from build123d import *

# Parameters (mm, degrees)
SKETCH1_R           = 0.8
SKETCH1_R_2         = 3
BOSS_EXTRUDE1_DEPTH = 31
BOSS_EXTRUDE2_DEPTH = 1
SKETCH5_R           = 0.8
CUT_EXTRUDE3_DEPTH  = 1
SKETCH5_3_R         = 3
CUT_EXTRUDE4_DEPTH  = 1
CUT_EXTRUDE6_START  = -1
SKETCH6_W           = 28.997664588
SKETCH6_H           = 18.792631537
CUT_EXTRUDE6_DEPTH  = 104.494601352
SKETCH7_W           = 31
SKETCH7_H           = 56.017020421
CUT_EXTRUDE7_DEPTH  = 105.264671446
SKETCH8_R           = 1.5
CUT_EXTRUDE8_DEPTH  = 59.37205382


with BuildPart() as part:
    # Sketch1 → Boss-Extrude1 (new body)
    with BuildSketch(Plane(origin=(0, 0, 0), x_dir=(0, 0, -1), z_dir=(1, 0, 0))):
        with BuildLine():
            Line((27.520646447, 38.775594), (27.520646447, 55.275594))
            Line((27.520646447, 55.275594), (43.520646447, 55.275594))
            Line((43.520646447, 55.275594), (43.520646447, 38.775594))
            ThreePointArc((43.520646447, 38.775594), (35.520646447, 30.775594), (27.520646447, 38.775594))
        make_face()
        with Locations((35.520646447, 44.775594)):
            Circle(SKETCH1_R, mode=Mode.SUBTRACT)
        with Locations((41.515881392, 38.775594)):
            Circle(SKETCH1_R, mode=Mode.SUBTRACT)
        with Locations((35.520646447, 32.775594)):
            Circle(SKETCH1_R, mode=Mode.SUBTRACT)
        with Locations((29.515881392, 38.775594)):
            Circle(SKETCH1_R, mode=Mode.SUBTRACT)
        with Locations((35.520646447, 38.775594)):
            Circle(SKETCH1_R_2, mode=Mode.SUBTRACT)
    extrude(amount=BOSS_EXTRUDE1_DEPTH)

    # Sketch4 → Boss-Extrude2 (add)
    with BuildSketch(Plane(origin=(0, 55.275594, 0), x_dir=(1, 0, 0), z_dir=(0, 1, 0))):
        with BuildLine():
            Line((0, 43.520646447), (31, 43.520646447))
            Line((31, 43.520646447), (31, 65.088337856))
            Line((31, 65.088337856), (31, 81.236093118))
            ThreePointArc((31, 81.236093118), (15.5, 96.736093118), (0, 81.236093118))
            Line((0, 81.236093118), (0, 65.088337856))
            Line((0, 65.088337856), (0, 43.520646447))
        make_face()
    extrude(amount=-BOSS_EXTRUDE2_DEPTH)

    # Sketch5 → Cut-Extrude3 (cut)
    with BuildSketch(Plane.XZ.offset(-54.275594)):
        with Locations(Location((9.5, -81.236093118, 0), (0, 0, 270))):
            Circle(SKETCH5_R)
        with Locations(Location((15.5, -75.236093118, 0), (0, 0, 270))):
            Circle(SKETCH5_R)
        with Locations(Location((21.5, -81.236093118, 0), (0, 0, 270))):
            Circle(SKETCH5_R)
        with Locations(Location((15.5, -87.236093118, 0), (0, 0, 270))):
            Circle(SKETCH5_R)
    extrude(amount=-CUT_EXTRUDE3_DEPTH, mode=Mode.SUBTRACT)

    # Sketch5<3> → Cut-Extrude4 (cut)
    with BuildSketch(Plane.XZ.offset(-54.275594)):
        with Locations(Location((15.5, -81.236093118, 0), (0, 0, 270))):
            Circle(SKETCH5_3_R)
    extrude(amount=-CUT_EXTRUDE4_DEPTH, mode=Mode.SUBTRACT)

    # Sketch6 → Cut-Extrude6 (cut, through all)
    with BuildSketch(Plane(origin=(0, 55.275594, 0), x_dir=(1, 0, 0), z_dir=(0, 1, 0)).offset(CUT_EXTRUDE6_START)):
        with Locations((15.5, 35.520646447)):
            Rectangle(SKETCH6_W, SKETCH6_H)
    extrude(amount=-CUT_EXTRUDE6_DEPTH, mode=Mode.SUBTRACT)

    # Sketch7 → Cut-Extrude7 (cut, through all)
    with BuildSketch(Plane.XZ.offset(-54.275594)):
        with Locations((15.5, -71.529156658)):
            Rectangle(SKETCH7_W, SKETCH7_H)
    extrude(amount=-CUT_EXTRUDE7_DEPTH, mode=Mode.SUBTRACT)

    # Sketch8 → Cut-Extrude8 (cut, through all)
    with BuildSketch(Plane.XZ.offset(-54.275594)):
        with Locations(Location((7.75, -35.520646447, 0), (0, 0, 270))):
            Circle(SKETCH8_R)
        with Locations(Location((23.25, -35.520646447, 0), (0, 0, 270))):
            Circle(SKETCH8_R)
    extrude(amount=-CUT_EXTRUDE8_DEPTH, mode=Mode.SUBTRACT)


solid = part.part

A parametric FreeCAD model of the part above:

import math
import FreeCAD as App
import Part
import Sketcher
from FreeCAD import Vector


def add_polygon(sketch, points):
    """Adds a closed chain of lines whose ends are joined by coincident constraints."""
    first, n = sketch.GeometryCount, len(points)
    for a, b in zip(points, points[1:] + points[:1]):
        sketch.addGeometry(Part.LineSegment(App.Vector(*a, 0), App.Vector(*b, 0)), False)
    for i in range(n):
        sketch.addConstraint(Sketcher.Constraint("Coincident", first + i, 2, first + (i + 1) % n, 1))

doc = App.newDocument("Part")
body = doc.addObject("PartDesign::Body", "Body")

# Sketch on YZ plane
sketch1 = body.newObject("Sketcher::SketchObject", "Sketch")
sketch1.AttachmentSupport = (doc.getObject("YZ_Plane"), [""])
sketch1.MapMode = "FlatFace"
sketch1.addGeometry([
    Part.LineSegment(Vector(55.3, -27.5, 0), Vector(38.8, -27.5, 0)),  # 0
    Part.ArcOfCircle(Part.Circle(Vector(38.8, -35.5, 0), Vector(0, 0, 1), 8), math.radians(90), math.radians(270)),  # 1
    Part.LineSegment(Vector(38.8, -43.5, 0), Vector(55.3, -43.5, 0)),  # 2
    Part.LineSegment(Vector(55.3, -43.5, 0), Vector(55.3, -27.5, 0)),  # 3
    Part.Circle(Vector(32.8, -35.5, 0), Vector(0, 0, 1), 0.8),  # 4
    Part.Circle(Vector(38.8, -41.5, 0), Vector(0, 0, 1), 0.8),  # 5
    Part.Circle(Vector(38.8, -35.5, 0), Vector(0, 0, 1), 3),  # 6
    Part.Circle(Vector(44.8, -35.5, 0), Vector(0, 0, 1), 0.8),  # 7
    Part.Circle(Vector(38.8, -29.5, 0), Vector(0, 0, 1), 0.8),  # 8
], False)
sketch1.addConstraint([
    Sketcher.Constraint("Tangent", 0, 2, 1, 1),
    Sketcher.Constraint("Tangent", 1, 2, 2, 1),
    Sketcher.Constraint("Coincident", 2, 2, 3, 1),
    Sketcher.Constraint("Coincident", 3, 2, 0, 1),
    Sketcher.Constraint("Horizontal", 0),
    Sketcher.Constraint("Horizontal", 2),
    Sketcher.Constraint("Vertical", 3),
    Sketcher.Constraint("Coincident", 6, 3, 1, 3),
    Sketcher.Constraint("Equal", 4, 5),
    Sketcher.Constraint("Equal", 5, 7),
    Sketcher.Constraint("Equal", 7, 8),
    Sketcher.Constraint("Horizontal", 1, 3, 4, 3),
    Sketcher.Constraint("Horizontal", 6, 3, 7, 3),
    Sketcher.Constraint("Vertical", 1, 3, 5, 3),
    Sketcher.Constraint("Vertical", 6, 3, 8, 3),
    Sketcher.Constraint("Diameter", 6, 6.0),
    Sketcher.Constraint("Radius", 1, 8.0),
    Sketcher.Constraint("Diameter", 4, 1.6),
    Sketcher.Constraint("DistanceX", 0, 2, 0, 1, 16.5),
    Sketcher.Constraint("DistanceX", 4, 3, 1, 3, 6.0),
    Sketcher.Constraint("DistanceX", 1, 3, 7, 3, 6.0),
    Sketcher.Constraint("DistanceY", 5, 3, 8, 3, 12.0),
    Sketcher.Constraint("DistanceY", 5, 3, -1, 1, 41.515881),
    Sketcher.Constraint("DistanceX", -1, 1, 1, 3, 38.775594),
    Sketcher.Constraint("DistanceY", 1, 3, -1, 1, 35.520646),
])
pad1 = body.newObject("PartDesign::Pad", "Pad")
pad1.Profile = sketch1
pad1.Length = 31

# Sketch on XZ plane
sketch2 = body.newObject("Sketcher::SketchObject", "Sketch001")
sketch2.AttachmentSupport = (doc.getObject("XZ_Plane"), [""])
sketch2.MapMode = "FlatFace"
sketch2.AttachmentOffset = App.Placement(Vector(0, 0, -55.275594), App.Rotation())
sketch2.addGeometry([
    Part.LineSegment(Vector(0, -44, 0), Vector(31, -44, 0)),
    Part.LineSegment(Vector(31, -44, 0), Vector(31, -81, 0)),
    Part.ArcOfCircle(Part.Circle(Vector(16, -81, 0), Vector(0, 0, 1), 16), math.radians(180), math.radians(360)),
    Part.LineSegment(Vector(0, -81, 0), Vector(0, -44, 0)),
], False)
sketch2.addConstraint([
    Sketcher.Constraint("Coincident", 0, 2, 1, 1),
    Sketcher.Constraint("Tangent", 1, 2, 2, 2),
    Sketcher.Constraint("Tangent", 2, 1, 3, 1),
    Sketcher.Constraint("Coincident", 3, 2, 0, 1),
    Sketcher.Constraint("Horizontal", 0),
    Sketcher.Constraint("Vertical", 1),
    Sketcher.Constraint("Vertical", 3),
    Sketcher.Constraint("PointOnObject", 2, 1, -2),
    Sketcher.Constraint("Radius", 2, 15.5),
    Sketcher.Constraint("DistanceY", 1, 2, 1, 1, 37.715447),
    Sketcher.Constraint("DistanceY", 2, 3, -1, 1, 81.236093),
])
pad2 = body.newObject("PartDesign::Pad", "Pad001")
pad2.Profile = sketch2
pad2.Length = 1

# Sketch on XZ plane
sketch3 = body.newObject("Sketcher::SketchObject", "Sketch002")
sketch3.AttachmentSupport = (doc.getObject("XZ_Plane"), [""])
sketch3.MapMode = "FlatFace"
sketch3.AttachmentOffset = App.Placement(Vector(0, 0, -54.275594), App.Rotation())
sketch3.addGeometry([
    Part.Circle(Vector(9.5, -81.2, 0), Vector(0, 0, 1), 0.8),
    Part.Circle(Vector(15.5, -75.2, 0), Vector(0, 0, 1), 0.8),
    Part.Circle(Vector(21.5, -81.2, 0), Vector(0, 0, 1), 0.8),
    Part.Circle(Vector(15.5, -87.2, 0), Vector(0, 0, 1), 0.8),
], False)
sketch3.addConstraint([
    Sketcher.Constraint("Equal", 0, 1),
    Sketcher.Constraint("Equal", 1, 2),
    Sketcher.Constraint("Equal", 2, 3),
    Sketcher.Constraint("Horizontal", 0, 3, 2, 3),
    Sketcher.Constraint("Vertical", 1, 3, 3, 3),
    Sketcher.Constraint("Diameter", 0, 1.6),
    Sketcher.Constraint("DistanceX", 0, 3, 1, 3, 6.0),
    Sketcher.Constraint("DistanceY", 0, 3, 1, 3, 6.0),
    Sketcher.Constraint("DistanceX", 1, 3, 2, 3, 6.0),
    Sketcher.Constraint("DistanceY", 3, 3, 0, 3, 6.0),
    Sketcher.Constraint("DistanceX", -1, 1, 0, 3, 9.5),
    Sketcher.Constraint("DistanceY", 0, 3, -1, 1, 81.236093),
])
pocket1 = body.newObject("PartDesign::Pocket", "Pocket")
pocket1.Profile = sketch3
pocket1.Length = 1

# Sketch on XZ plane
sketch4 = body.newObject("Sketcher::SketchObject", "Sketch003")
sketch4.AttachmentSupport = (doc.getObject("XZ_Plane"), [""])
sketch4.MapMode = "FlatFace"
sketch4.AttachmentOffset = App.Placement(Vector(0, 0, -54.275594), App.Rotation())
sketch4.addGeometry(Part.Circle(Vector(15.5, -81.2, 0), Vector(0, 0, 1), 3), False)
sketch4.addConstraint([
    Sketcher.Constraint("Diameter", 0, 6.0),
    Sketcher.Constraint("DistanceX", -1, 1, 0, 3, 15.5),
    Sketcher.Constraint("DistanceY", 0, 3, -1, 1, 81.236093),
])
pocket2 = body.newObject("PartDesign::Pocket", "Pocket001")
pocket2.Profile = sketch4
pocket2.Length = 1

# Sketch on XZ plane
sketch5 = body.newObject("Sketcher::SketchObject", "Sketch004")
sketch5.AttachmentSupport = (doc.getObject("XZ_Plane"), [""])
sketch5.MapMode = "FlatFace"
sketch5.AttachmentOffset = App.Placement(Vector(0, 0, -54.275594), App.Rotation())
add_polygon(sketch5, [(1, -45), (1, -26), (30, -26), (30, -45)])  # lines 0-3
sketch5.addConstraint([
    Sketcher.Constraint("Vertical", 0),
    Sketcher.Constraint("Horizontal", 1),
    Sketcher.Constraint("Vertical", 2),
    Sketcher.Constraint("Horizontal", 3),
    Sketcher.Constraint("DistanceY", 0, 1, 0, 2, 18.792632),
    Sketcher.Constraint("DistanceX", 1, 1, 1, 2, 28.997665),
    Sketcher.Constraint("DistanceY", 0, 2, -1, 1, 26.124331),
    Sketcher.Constraint("DistanceX", -1, 1, 0, 2, 1.001168),
])
pocket3 = body.newObject("PartDesign::Pocket", "Pocket002")
pocket3.Profile = sketch5
pocket3.Type = "ThroughAll"
pocket3.Reversed = True

# Sketch on XZ plane
sketch6 = body.newObject("Sketcher::SketchObject", "Sketch005")
sketch6.AttachmentSupport = (doc.getObject("XZ_Plane"), [""])
sketch6.MapMode = "FlatFace"
sketch6.AttachmentOffset = App.Placement(Vector(0, 0, -54.275594), App.Rotation())
add_polygon(sketch6, [(0, -44), (0, -100), (31, -100), (31, -44)])  # lines 0-3
sketch6.addConstraint([
    Sketcher.Constraint("Vertical", 0),
    Sketcher.Constraint("Horizontal", 1),
    Sketcher.Constraint("Vertical", 2),
    Sketcher.Constraint("Horizontal", 3),
    Sketcher.Constraint("PointOnObject", 0, 2, -2),
    Sketcher.Constraint("DistanceX", 1, 1, 1, 2, 31.0),
    Sketcher.Constraint("DistanceY", 0, 2, 0, 1, 56.01702),
    Sketcher.Constraint("DistanceY", 0, 2, -1, 1, 99.537667),
])
pocket4 = body.newObject("PartDesign::Pocket", "Pocket003")
pocket4.Profile = sketch6
pocket4.Type = "ThroughAll"

# Sketch on XZ plane
sketch7 = body.newObject("Sketcher::SketchObject", "Sketch006")
sketch7.AttachmentSupport = (doc.getObject("XZ_Plane"), [""])
sketch7.MapMode = "FlatFace"
sketch7.AttachmentOffset = App.Placement(Vector(0, 0, -54.275594), App.Rotation())
sketch7.addGeometry([
    Part.Circle(Vector(7.8, -35.5, 0), Vector(0, 0, 1), 1.5),
    Part.Circle(Vector(23.2, -35.5, 0), Vector(0, 0, 1), 1.5),
], False)
sketch7.addConstraint([
    Sketcher.Constraint("Equal", 0, 1),
    Sketcher.Constraint("Horizontal", 0, 3, 1, 3),
    Sketcher.Constraint("Diameter", 0, 3.0),
    Sketcher.Constraint("DistanceX", 0, 3, 1, 3, 15.5),
    Sketcher.Constraint("DistanceX", -1, 1, 0, 3, 7.75),
    Sketcher.Constraint("DistanceY", 0, 3, -1, 1, 35.520646),
])
pocket5 = body.newObject("PartDesign::Pocket", "Pocket004")
pocket5.Profile = sketch7
pocket5.Type = "ThroughAll"

doc.recompute()
